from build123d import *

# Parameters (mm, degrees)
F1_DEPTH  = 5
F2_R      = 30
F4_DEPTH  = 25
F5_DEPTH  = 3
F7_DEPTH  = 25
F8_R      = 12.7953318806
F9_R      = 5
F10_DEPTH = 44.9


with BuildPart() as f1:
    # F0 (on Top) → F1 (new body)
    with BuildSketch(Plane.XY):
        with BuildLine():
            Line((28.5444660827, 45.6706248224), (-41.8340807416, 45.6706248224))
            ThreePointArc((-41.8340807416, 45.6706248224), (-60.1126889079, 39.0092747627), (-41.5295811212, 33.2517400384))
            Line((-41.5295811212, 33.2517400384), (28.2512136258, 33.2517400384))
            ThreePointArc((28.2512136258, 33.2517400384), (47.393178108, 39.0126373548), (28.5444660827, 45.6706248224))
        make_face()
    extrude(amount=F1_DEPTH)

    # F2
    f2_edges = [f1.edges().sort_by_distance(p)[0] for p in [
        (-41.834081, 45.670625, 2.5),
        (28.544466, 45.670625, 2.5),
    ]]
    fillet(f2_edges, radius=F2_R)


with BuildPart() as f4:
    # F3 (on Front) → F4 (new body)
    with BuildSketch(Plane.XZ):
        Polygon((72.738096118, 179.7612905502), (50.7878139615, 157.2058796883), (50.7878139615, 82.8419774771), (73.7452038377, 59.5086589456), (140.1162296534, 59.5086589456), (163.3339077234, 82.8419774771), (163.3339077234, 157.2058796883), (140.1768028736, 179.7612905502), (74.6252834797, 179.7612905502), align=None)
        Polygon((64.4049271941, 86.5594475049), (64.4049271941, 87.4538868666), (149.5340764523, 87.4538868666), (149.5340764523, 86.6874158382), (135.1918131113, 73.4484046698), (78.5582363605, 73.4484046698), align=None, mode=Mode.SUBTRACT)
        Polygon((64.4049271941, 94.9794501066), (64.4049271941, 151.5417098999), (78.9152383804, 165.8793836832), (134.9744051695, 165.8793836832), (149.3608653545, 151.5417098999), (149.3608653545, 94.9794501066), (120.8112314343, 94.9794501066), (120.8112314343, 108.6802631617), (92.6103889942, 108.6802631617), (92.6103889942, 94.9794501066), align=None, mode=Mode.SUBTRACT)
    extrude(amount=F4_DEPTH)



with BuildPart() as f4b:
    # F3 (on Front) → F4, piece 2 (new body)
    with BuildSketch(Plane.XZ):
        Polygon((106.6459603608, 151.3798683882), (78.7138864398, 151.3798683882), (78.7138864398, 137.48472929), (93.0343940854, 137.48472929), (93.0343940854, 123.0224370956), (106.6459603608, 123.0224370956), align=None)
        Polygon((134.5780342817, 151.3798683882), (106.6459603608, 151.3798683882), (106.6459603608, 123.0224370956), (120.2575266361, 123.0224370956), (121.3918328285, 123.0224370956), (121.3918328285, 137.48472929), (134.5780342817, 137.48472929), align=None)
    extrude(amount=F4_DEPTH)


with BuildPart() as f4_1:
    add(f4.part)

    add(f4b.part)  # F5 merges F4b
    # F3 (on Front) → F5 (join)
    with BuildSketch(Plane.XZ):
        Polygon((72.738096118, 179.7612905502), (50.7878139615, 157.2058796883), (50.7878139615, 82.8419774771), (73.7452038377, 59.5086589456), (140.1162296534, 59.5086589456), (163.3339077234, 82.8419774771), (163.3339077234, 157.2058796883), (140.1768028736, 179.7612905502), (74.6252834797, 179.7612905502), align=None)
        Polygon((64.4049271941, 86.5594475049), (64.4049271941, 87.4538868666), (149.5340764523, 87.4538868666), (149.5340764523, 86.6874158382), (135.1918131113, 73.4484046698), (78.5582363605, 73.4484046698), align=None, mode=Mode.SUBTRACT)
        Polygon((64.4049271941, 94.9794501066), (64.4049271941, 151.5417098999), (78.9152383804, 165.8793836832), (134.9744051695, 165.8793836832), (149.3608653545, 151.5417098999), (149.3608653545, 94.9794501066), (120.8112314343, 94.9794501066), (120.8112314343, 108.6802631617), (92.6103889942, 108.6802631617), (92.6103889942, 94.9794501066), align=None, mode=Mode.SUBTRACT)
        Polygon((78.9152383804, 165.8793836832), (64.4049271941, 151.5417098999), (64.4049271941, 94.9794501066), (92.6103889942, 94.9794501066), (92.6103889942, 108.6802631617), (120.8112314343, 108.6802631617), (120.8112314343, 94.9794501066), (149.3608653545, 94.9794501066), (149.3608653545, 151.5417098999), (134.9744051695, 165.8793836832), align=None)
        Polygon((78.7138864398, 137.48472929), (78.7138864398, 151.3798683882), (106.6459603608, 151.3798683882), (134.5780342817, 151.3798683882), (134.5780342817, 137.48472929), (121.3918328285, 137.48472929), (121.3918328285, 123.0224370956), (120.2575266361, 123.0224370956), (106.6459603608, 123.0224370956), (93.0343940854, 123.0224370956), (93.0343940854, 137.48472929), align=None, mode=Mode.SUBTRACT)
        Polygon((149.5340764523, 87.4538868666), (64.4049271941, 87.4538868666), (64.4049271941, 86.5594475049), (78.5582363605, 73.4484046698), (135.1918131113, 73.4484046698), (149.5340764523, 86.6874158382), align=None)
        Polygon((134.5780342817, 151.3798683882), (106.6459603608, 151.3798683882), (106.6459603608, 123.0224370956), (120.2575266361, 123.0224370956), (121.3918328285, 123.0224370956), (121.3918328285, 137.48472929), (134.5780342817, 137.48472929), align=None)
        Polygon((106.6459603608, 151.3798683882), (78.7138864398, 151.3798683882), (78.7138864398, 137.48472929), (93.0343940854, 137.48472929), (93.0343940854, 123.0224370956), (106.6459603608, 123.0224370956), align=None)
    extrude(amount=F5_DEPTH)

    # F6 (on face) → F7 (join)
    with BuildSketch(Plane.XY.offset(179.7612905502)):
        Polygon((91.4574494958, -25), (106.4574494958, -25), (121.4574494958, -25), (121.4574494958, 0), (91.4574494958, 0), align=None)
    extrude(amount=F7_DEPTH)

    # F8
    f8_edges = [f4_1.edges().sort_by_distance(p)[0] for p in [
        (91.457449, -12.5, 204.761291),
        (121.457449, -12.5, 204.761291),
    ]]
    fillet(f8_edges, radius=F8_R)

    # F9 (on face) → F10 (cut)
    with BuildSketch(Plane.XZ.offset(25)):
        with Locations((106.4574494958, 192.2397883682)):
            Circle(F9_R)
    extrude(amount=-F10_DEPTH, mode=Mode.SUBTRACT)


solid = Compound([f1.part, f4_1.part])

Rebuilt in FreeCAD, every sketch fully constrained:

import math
import FreeCAD as App
import Part
import Sketcher
Q = App.Units.Quantity


def edges_at(feature, points):
    """Names of the edges that pass closest to the given points."""
    edges = feature.Shape.Edges
    near = lambda p: min(range(len(edges)), key=lambda i: edges[i].distToShape(Part.Vertex(*p))[0])
    return sorted({f"Edge{near(p) + 1}" for p in points})

doc = App.newDocument("Part")
body = doc.addObject("PartDesign::Body", "Body")

# Sketch on XY plane
sketch1 = body.newObject("Sketcher::SketchObject", "Sketch")
sketch1.AttachmentSupport = (doc.getObject("XY_Plane"), [""])
sketch1.MapMode = "FlatFace"
sketch1.addGeometry([
    Part.LineSegment(App.Vector(29, 46, 0), App.Vector(-42, 46, 0)),
    Part.ArcOfCircle(Part.Circle(App.Vector(-50, 39, 0), App.Vector(0, 0, 1), 10), math.radians(39), math.radians(324)),
    Part.LineSegment(App.Vector(-42, 33, 0), App.Vector(28, 33, 0)),
    Part.ArcOfCircle(Part.Circle(App.Vector(37, 39, 0), App.Vector(0, 0, 1), 11), math.radians(-145), math.radians(142)),
], False)
sketch1.addConstraint([
    Sketcher.Constraint("Coincident", 0, 2, 1, 1),
    Sketcher.Constraint("Coincident", 1, 2, 2, 1),
    Sketcher.Constraint("Coincident", 2, 2, 3, 1),
    Sketcher.Constraint("Coincident", 3, 2, 0, 1),
    Sketcher.Constraint("Horizontal", 0),
    Sketcher.Constraint("Horizontal", 2),
    Sketcher.Constraint("Horizontal", 1, 3, 3, 3),
    Sketcher.Constraint("Radius", 1, Q("10.264508 mm")),
    Sketcher.Constraint("Radius", 3, Q("10.515511 mm")),
    Sketcher.Constraint("DistanceX", 0, 2, 1, 2, Q("0.3045 mm")),
    Sketcher.Constraint("DistanceX", 0, 2, 0, 1, Q("70.378547 mm")),
    Sketcher.Constraint("DistanceX", 0, 2, -1, 1, Q("41.834081 mm")),
    Sketcher.Constraint("DistanceY", -1, 1, 1, 2, Q("33.25174 mm")),
    Sketcher.Constraint("DistanceY", 1, 3, 0, 2, Q("6.409749 mm")),
])
pad1 = body.newObject("PartDesign::Pad", "Pad")
pad1.Profile = sketch1
pad1.Length = 5
doc.recompute()

fillet = body.newObject("PartDesign::Fillet", "Fillet")
fillet.Base = (pad1, edges_at(pad1, [(-41.834, 45.671, 2.5), (28.544, 45.671, 2.5)]))
fillet.Radius = 30
body2 = doc.addObject("PartDesign::Body", "Body001")

# Sketch on XZ plane
sketch2 = body2.newObject("Sketcher::SketchObject", "Sketch001")
sketch2.AttachmentSupport = (doc.getObject("XZ_Plane001"), [""])
sketch2.MapMode = "FlatFace"
sketch2.addGeometry([
    Part.LineSegment(App.Vector(72.7, 179.8, 0), App.Vector(50.8, 157.2, 0)),  # 0
    Part.LineSegment(App.Vector(50.8, 157.2, 0), App.Vector(50.8, 82.8, 0)),  # 1
    Part.LineSegment(App.Vector(50.8, 82.8, 0), App.Vector(73.7, 59.5, 0)),  # 2
    Part.LineSegment(App.Vector(73.7, 59.5, 0), App.Vector(140.1, 59.5, 0)),  # 3
    Part.LineSegment(App.Vector(140.1, 59.5, 0), App.Vector(163.3, 82.8, 0)),  # 4
    Part.LineSegment(App.Vector(163.3, 82.8, 0), App.Vector(163.3, 157.2, 0)),  # 5
    Part.LineSegment(App.Vector(163.3, 157.2, 0), App.Vector(140.2, 179.8, 0)),  # 6
    Part.LineSegment(App.Vector(140.2, 179.8, 0), App.Vector(72.7, 179.8, 0)),  # 7
    Part.LineSegment(App.Vector(78.6, 73.4, 0), App.Vector(64.4, 86.6, 0)),  # 8
    Part.LineSegment(App.Vector(64.4, 86.6, 0), App.Vector(64.4, 87.5, 0)),  # 9
    Part.LineSegment(App.Vector(64.4, 87.5, 0), App.Vector(149.5, 87.5, 0)),  # 10
    Part.LineSegment(App.Vector(149.5, 87.5, 0), App.Vector(149.5, 86.7, 0)),  # 11
    Part.LineSegment(App.Vector(149.5, 86.7, 0), App.Vector(135.2, 73.4, 0)),  # 12
    Part.LineSegment(App.Vector(135.2, 73.4, 0), App.Vector(78.6, 73.4, 0)),  # 13
    Part.LineSegment(App.Vector(92.6, 95, 0), App.Vector(64.4, 95, 0)),  # 14
    Part.LineSegment(App.Vector(64.4, 95, 0), App.Vector(64.4, 151.5, 0)),  # 15
    Part.LineSegment(App.Vector(64.4, 151.5, 0), App.Vector(78.9, 165.9, 0)),  # 16
    Part.LineSegment(App.Vector(78.9, 165.9, 0), App.Vector(135, 165.9, 0)),  # 17
    Part.LineSegment(App.Vector(135, 165.9, 0), App.Vector(149.4, 151.5, 0)),  # 18
    Part.LineSegment(App.Vector(149.4, 151.5, 0), App.Vector(149.4, 95, 0)),  # 19
    Part.LineSegment(App.Vector(149.4, 95, 0), App.Vector(120.8, 95, 0)),  # 20
    Part.LineSegment(App.Vector(120.8, 95, 0), App.Vector(120.8, 108.7, 0)),  # 21
    Part.LineSegment(App.Vector(120.8, 108.7, 0), App.Vector(92.6, 108.7, 0)),  # 22
    Part.LineSegment(App.Vector(92.6, 108.7, 0), App.Vector(92.6, 95, 0)),  # 23
], False)
sketch2.addConstraint([
    Sketcher.Constraint("Coincident", 0, 2, 1, 1),
    Sketcher.Constraint("Coincident", 1, 2, 2, 1),
    Sketcher.Constraint("Coincident", 2, 2, 3, 1),
    Sketcher.Constraint("Coincident", 3, 2, 4, 1),
    Sketcher.Constraint("Coincident", 4, 2, 5, 1),
    Sketcher.Constraint("Coincident", 5, 2, 6, 1),
    Sketcher.Constraint("Coincident", 6, 2, 7, 1),
    Sketcher.Constraint("Coincident", 7, 2, 0, 1),
    Sketcher.Constraint("Coincident", 8, 2, 9, 1),
    Sketcher.Constraint("Coincident", 9, 2, 10, 1),
    Sketcher.Constraint("Coincident", 10, 2, 11, 1),
    Sketcher.Constraint("Coincident", 11, 2, 12, 1),
    Sketcher.Constraint("Coincident", 12, 2, 13, 1),
    Sketcher.Constraint("Coincident", 13, 2, 8, 1),
    Sketcher.Constraint("Coincident", 14, 2, 15, 1),
    Sketcher.Constraint("Coincident", 15, 2, 16, 1),
    Sketcher.Constraint("Coincident", 16, 2, 17, 1),
    Sketcher.Constraint("Coincident", 17, 2, 18, 1),
    Sketcher.Constraint("Coincident", 18, 2, 19, 1),
    Sketcher.Constraint("Coincident", 19, 2, 20, 1),
    Sketcher.Constraint("Coincident", 20, 2, 21, 1),
    Sketcher.Constraint("Coincident", 21, 2, 22, 1),
    Sketcher.Constraint("Coincident", 22, 2, 23, 1),
    Sketcher.Constraint("Coincident", 23, 2, 14, 1),
    Sketcher.Constraint("Vertical", 1),
    Sketcher.Constraint("Horizontal", 3),
    Sketcher.Constraint("Vertical", 5),
    Sketcher.Constraint("Horizontal", 7),
    Sketcher.Constraint("Vertical", 9),
    Sketcher.Constraint("Horizontal", 10),
    Sketcher.Constraint("Vertical", 11),
    Sketcher.Constraint("Horizontal", 13),
    Sketcher.Constraint("Horizontal", 14),
    Sketcher.Constraint("Vertical", 15),
    Sketcher.Constraint("Horizontal", 17),
    Sketcher.Constraint("Vertical", 19),
    Sketcher.Constraint("Horizontal", 20),
    Sketcher.Constraint("Vertical", 21),
    Sketcher.Constraint("Horizontal", 22),
    Sketcher.Constraint("Vertical", 23),
    Sketcher.Constraint("Horizontal", 1, 2, 4, 2),
    Sketcher.Constraint("Horizontal", 0, 2, 5, 2),
    Sketcher.Constraint("Horizontal", 15, 2, 18, 2),
    Sketcher.Constraint("Horizontal", 14, 2, 19, 2),
    Sketcher.Constraint("Vertical", 9, 2, 14, 2),
    Sketcher.Constraint("DistanceX", 20, 2, 3, 2, Q("19.304998 mm")),
    Sketcher.Constraint("DistanceX", 10, 1, 10, 2, Q("85.129149 mm")),
    Sketcher.Constraint("DistanceX", 14, 2, 14, 1, Q("28.205462 mm")),
    Sketcher.Constraint("DistanceY", 9, 1, 9, 2, Q("0.894439 mm")),
    Sketcher.Constraint("DistanceY", 11, 2, 11, 1, Q("0.766471 mm")),
    Sketcher.Constraint("DistanceY", 15, 1, 15, 2, Q("56.56226 mm")),
    Sketcher.Constraint("Distance", 6, Q("32.32643 mm")),
    Sketcher.Constraint("Distance", 8, Q("19.29289 mm")),
    Sketcher.Constraint("Distance", 16, Q("20.398971 mm")),
    Sketcher.Constraint("Distance", 18, Q("20.311059 mm")),
    Sketcher.Constraint("DistanceX", 3, 1, 3, 2, Q("66.371026 mm")),
    Sketcher.Constraint("DistanceX", 7, 2, 7, 1, Q("67.438707 mm")),
    Sketcher.Constraint("DistanceX", 13, 2, 13, 1, Q("56.633577 mm")),
    Sketcher.Constraint("DistanceX", 17, 1, 17, 2, Q("56.059167 mm")),
    Sketcher.Constraint("DistanceX", 20, 2, 20, 1, Q("28.549634 mm")),
    Sketcher.Constraint("DistanceX", 22, 2, 22, 1, Q("28.200842 mm")),
    Sketcher.Constraint("DistanceY", 1, 2, 1, 1, Q("74.363902 mm")),
    Sketcher.Constraint("DistanceY", 21, 1, 21, 2, Q("13.700813 mm")),
    Sketcher.Constraint("DistanceY", -1, 1, 0, 2, Q("157.20588 mm")),
    Sketcher.Constraint("DistanceY", -1, 1, 2, 2, Q("59.508659 mm")),
    Sketcher.Constraint("DistanceX", -1, 1, 3, 2, Q("140.11623 mm")),
    Sketcher.Constraint("DistanceY", -1, 1, 6, 2, Q("179.761291 mm")),
    Sketcher.Constraint("DistanceY", -1, 1, 14, 2, Q("94.97945 mm")),
    Sketcher.Constraint("DistanceX", 1, 2, 2, 2, Q("22.95739 mm")),
    Sketcher.Constraint("DistanceX", 3, 2, 4, 2, Q("23.217678 mm")),
    Sketcher.Constraint("DistanceY", 1, 2, 8, 2, Q("3.71747 mm")),
    Sketcher.Constraint("DistanceY", 12, 2, 11, 2, Q("13.239011 mm")),
])
pad2 = body2.newObject("PartDesign::Pad", "Pad001")
pad2.Profile = sketch2
pad2.Length = 25
body3 = doc.addObject("PartDesign::Body", "Body002")

# Sketch on XZ plane
sketch3 = body3.newObject("Sketcher::SketchObject", "Sketch002")
sketch3.AttachmentSupport = (doc.getObject("XZ_Plane002"), [""])
sketch3.MapMode = "FlatFace"
sketch3.addGeometry([
    Part.LineSegment(App.Vector(79, 151, 0), App.Vector(79, 137, 0)),  # 0
    Part.LineSegment(App.Vector(79, 137, 0), App.Vector(93, 137, 0)),  # 1
    Part.LineSegment(App.Vector(93, 137, 0), App.Vector(93, 123, 0)),  # 2
    Part.LineSegment(App.Vector(93, 123, 0), App.Vector(121, 123, 0)),  # 3
    Part.LineSegment(App.Vector(121, 123, 0), App.Vector(121, 137, 0)),  # 4
    Part.LineSegment(App.Vector(121, 137, 0), App.Vector(135, 137, 0)),  # 5
    Part.LineSegment(App.Vector(135, 137, 0), App.Vector(135, 151, 0)),  # 6
    Part.LineSegment(App.Vector(135, 151, 0), App.Vector(79, 151, 0)),  # 7
], False)
sketch3.addConstraint([
    Sketcher.Constraint("Coincident", 0, 2, 1, 1),
    Sketcher.Constraint("Coincident", 1, 2, 2, 1),
    Sketcher.Constraint("Coincident", 2, 2, 3, 1),
    Sketcher.Constraint("Coincident", 3, 2, 4, 1),
    Sketcher.Constraint("Coincident", 4, 2, 5, 1),
    Sketcher.Constraint("Coincident", 5, 2, 6, 1),
    Sketcher.Constraint("Coincident", 6, 2, 7, 1),
    Sketcher.Constraint("Coincident", 7, 2, 0, 1),
    Sketcher.Constraint("Vertical", 0),
    Sketcher.Constraint("Horizontal", 1),
    Sketcher.Constraint("Vertical", 2),
    Sketcher.Constraint("Horizontal", 3),
    Sketcher.Constraint("Vertical", 4),
    Sketcher.Constraint("Horizontal", 5),
    Sketcher.Constraint("Vertical", 6),
    Sketcher.Constraint("Horizontal", 7),
    Sketcher.Constraint("Horizontal", 1, 2, 4, 2),
    Sketcher.Constraint("DistanceX", 5, 1, 5, 2, Q("13.186201 mm")),
    Sketcher.Constraint("DistanceX", 3, 1, 3, 2, Q("28.357439 mm")),
    Sketcher.Constraint("DistanceY", 0, 2, 0, 1, Q("13.895139 mm")),
    Sketcher.Constraint("DistanceX", 1, 1, 1, 2, Q("14.320508 mm")),
    Sketcher.Constraint("DistanceY", 2, 2, 2, 1, Q("14.462292 mm")),
    Sketcher.Constraint("DistanceY", -1, 1, 0, 2, Q("137.484729 mm")),
    Sketcher.Constraint("DistanceX", -1, 1, 0, 2, Q("78.713886 mm")),
])
pad3 = body3.newObject("PartDesign::Pad", "Pad002")
pad3.Profile = sketch3
pad3.Length = 25
body2.AllowCompound = True
doc.recompute()

boolean = body2.newObject("PartDesign::Boolean", "Boolean")
boolean.Type = "Fuse"
boolean.addObjects([body3])

# Sketch on XZ plane
sketch4 = body2.newObject("Sketcher::SketchObject", "Sketch003")
sketch4.AttachmentSupport = (doc.getObject("XZ_Plane001"), [""])
sketch4.MapMode = "FlatFace"
sketch4.addGeometry([
    Part.LineSegment(App.Vector(73, 180, 0), App.Vector(51, 157, 0)),  # 0
    Part.LineSegment(App.Vector(51, 157, 0), App.Vector(51, 83, 0)),  # 1
    Part.LineSegment(App.Vector(51, 83, 0), App.Vector(74, 60, 0)),  # 2
    Part.LineSegment(App.Vector(74, 60, 0), App.Vector(140, 60, 0)),  # 3
    Part.LineSegment(App.Vector(140, 60, 0), App.Vector(163, 83, 0)),  # 4
    Part.LineSegment(App.Vector(163, 83, 0), App.Vector(163, 157, 0)),  # 5
    Part.LineSegment(App.Vector(163, 157, 0), App.Vector(140, 180, 0)),  # 6
    Part.LineSegment(App.Vector(140, 180, 0), App.Vector(73, 180, 0)),  # 7
], False)
sketch4.addConstraint([
    Sketcher.Constraint("Coincident", 0, 2, 1, 1),
    Sketcher.Constraint("Coincident", 1, 2, 2, 1),
    Sketcher.Constraint("Coincident", 2, 2, 3, 1),
    Sketcher.Constraint("Coincident", 3, 2, 4, 1),
    Sketcher.Constraint("Coincident", 4, 2, 5, 1),
    Sketcher.Constraint("Coincident", 5, 2, 6, 1),
    Sketcher.Constraint("Coincident", 6, 2, 7, 1),
    Sketcher.Constraint("Coincident", 7, 2, 0, 1),
    Sketcher.Constraint("Vertical", 1),
    Sketcher.Constraint("Horizontal", 3),
    Sketcher.Constraint("Vertical", 5),
    Sketcher.Constraint("Horizontal", 7),
    Sketcher.Constraint("Horizontal", 1, 2, 4, 2),
    Sketcher.Constraint("Horizontal", 0, 2, 5, 2),
    Sketcher.Constraint("Distance", 6, Q("32.32643 mm")),
    Sketcher.Constraint("DistanceX", 3, 1, 3, 2, Q("66.371026 mm")),
    Sketcher.Constraint("DistanceX", 7, 2, 7, 1, Q("67.438707 mm")),
    Sketcher.Constraint("DistanceY", 1, 2, 1, 1, Q("74.363902 mm")),
    Sketcher.Constraint("DistanceY", -1, 1, 0, 2, Q("157.20588 mm")),
    Sketcher.Constraint("DistanceY", -1, 1, 2, 2, Q("59.508659 mm")),
    Sketcher.Constraint("DistanceX", -1, 1, 3, 2, Q("140.11623 mm")),
    Sketcher.Constraint("DistanceY", -1, 1, 6, 2, Q("179.761291 mm")),
    Sketcher.Constraint("DistanceX", 1, 2, 2, 2, Q("22.95739 mm")),
    Sketcher.Constraint("DistanceX", 3, 2, 4, 2, Q("23.217678 mm")),
])
pad4 = body2.newObject("PartDesign::Pad", "Pad003")
pad4.Profile = sketch4
pad4.Length = 3

# Sketch on XY plane
sketch5 = body2.newObject("Sketcher::SketchObject", "Sketch004")
sketch5.AttachmentSupport = (doc.getObject("XY_Plane001"), [""])
sketch5.MapMode = "FlatFace"
sketch5.AttachmentOffset = App.Placement(App.Vector(0, 0, 179.761291), App.Rotation())
sketch5.addGeometry([
    Part.LineSegment(App.Vector(91, -25, 0), App.Vector(121, -25, 0)),
    Part.LineSegment(App.Vector(121, -25, 0), App.Vector(121, 0, 0)),
    Part.LineSegment(App.Vector(121, 0, 0), App.Vector(91, 0, 0)),
    Part.LineSegment(App.Vector(91, 0, 0), App.Vector(91, -25, 0)),
], False)
sketch5.addConstraint([
    Sketcher.Constraint("Coincident", 0, 2, 1, 1),
    Sketcher.Constraint("Coincident", 1, 2, 2, 1),
    Sketcher.Constraint("Coincident", 2, 2, 3, 1),
    Sketcher.Constraint("Coincident", 3, 2, 0, 1),
    Sketcher.Constraint("Horizontal", 0),
    Sketcher.Constraint("Vertical", 1),
    Sketcher.Constraint("Horizontal", 2),
    Sketcher.Constraint("Vertical", 3),
    Sketcher.Constraint("PointOnObject", 1, 2, -1),
    Sketcher.Constraint("DistanceX", 0, 1, 0, 2, Q("30 mm")),
    Sketcher.Constraint("DistanceY", 1, 1, 1, 2, Q("25 mm")),
    Sketcher.Constraint("DistanceX", -1, 1, 0, 2, Q("121.457449 mm")),
])
pad5 = body2.newObject("PartDesign::Pad", "Pad004")
pad5.Profile = sketch5
pad5.Length = 25
doc.recompute()

fillet2 = body2.newObject("PartDesign::Fillet", "Fillet001")
fillet2.Base = (pad5, edges_at(pad5, [(91.457, -12.5, 204.761), (121.457, -12.5, 204.761)]))
fillet2.Radius = 12.795332

# Sketch on XZ plane
sketch6 = body2.newObject("Sketcher::SketchObject", "Sketch005")
sketch6.AttachmentSupport = (doc.getObject("XZ_Plane001"), [""])
sketch6.MapMode = "FlatFace"
sketch6.AttachmentOffset = App.Placement(App.Vector(0, 0, 25), App.Rotation())
sketch6.addGeometry(Part.Circle(App.Vector(106, 192, 0), App.Vector(0, 0, 1), 5), False)
sketch6.addConstraint([
    Sketcher.Constraint("Diameter", 0, Q("10 mm")),
    Sketcher.Constraint("DistanceX", -1, 1, 0, 3, Q("106.457449 mm")),
    Sketcher.Constraint("DistanceY", -1, 1, 0, 3, Q("192.239788 mm")),
])
pocket1 = body2.newObject("PartDesign::Pocket", "Pocket")
pocket1.Profile = sketch6
pocket1.Length = 44.9

doc.recompute()
